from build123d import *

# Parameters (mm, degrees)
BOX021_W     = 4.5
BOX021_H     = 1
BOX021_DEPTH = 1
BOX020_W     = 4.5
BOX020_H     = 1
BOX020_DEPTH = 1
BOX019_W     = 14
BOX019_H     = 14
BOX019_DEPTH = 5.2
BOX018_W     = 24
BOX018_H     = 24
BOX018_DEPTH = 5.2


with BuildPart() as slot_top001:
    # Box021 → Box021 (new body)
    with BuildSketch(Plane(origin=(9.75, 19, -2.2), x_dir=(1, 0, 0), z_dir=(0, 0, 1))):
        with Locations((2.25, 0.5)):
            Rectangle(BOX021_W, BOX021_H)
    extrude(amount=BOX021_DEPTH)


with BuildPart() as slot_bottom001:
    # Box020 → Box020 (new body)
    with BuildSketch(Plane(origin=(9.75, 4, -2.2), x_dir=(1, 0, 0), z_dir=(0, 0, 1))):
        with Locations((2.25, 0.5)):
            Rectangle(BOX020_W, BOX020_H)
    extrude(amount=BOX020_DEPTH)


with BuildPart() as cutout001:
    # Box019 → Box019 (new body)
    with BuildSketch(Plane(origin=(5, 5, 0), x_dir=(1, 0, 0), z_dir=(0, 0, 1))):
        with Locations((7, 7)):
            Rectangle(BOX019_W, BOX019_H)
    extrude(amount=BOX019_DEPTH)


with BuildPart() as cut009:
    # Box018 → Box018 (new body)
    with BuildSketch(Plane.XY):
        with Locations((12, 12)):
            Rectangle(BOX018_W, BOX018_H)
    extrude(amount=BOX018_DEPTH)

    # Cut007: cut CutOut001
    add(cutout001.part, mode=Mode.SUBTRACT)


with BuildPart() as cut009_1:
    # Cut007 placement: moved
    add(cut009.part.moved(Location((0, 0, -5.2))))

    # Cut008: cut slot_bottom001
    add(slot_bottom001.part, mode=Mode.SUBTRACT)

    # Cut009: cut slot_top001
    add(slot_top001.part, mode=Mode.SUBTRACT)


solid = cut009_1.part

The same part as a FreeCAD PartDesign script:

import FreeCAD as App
import Part
import Sketcher
Q = App.Units.Quantity

doc = App.newDocument("Part")
params = doc.addObject("Spreadsheet::Sheet", "Params")
for row, (alias, value) in enumerate([
    ("sketch1_height", "1 mm"),
    ("sketch1_width", "4.5 mm"),
    ("pad1_length", "1 mm"),
    ("sketch2_height", "1 mm"),
    ("sketch2_width", "4.5 mm"),
    ("pad2_length", "1 mm"),
    ("sketch3_width", "14 mm"),
    ("pad3_length", "5.2 mm"),
    ("sketch4_width", "24 mm"),
    ("pad4_length", "5.2 mm"),
], start=1):
    params.set(f"A{row}", alias)
    params.set(f"B{row}", "=" + value)
    params.setAlias(f"B{row}", alias)

body = doc.addObject("PartDesign::Body", "Body")

sketch1 = body.newObject("Sketcher::SketchObject", "Sketch")
sketch1.AttachmentSupport = (doc.getObject("XY_Plane"), [""])
sketch1.MapMode = "FlatFace"
sketch1.AttachmentOffset = App.Placement(App.Vector(0, 0, -2.2), App.Rotation())
sketch1.addGeometry(Part.LineSegment(App.Vector(9.75, 20, 0), App.Vector(9.75, 19, 0)), False)
sketch1.addGeometry(Part.LineSegment(App.Vector(9.75, 19, 0), App.Vector(14.25, 19, 0)), False)
sketch1.addGeometry(Part.LineSegment(App.Vector(14.25, 19, 0), App.Vector(14.25, 20, 0)), False)
sketch1.addGeometry(Part.LineSegment(App.Vector(14.25, 20, 0), App.Vector(9.75, 20, 0)), False)
sketch1.addConstraint(Sketcher.Constraint("Coincident", 0, 2, 1, 1))
sketch1.addConstraint(Sketcher.Constraint("Coincident", 1, 2, 2, 1))
sketch1.addConstraint(Sketcher.Constraint("Coincident", 2, 2, 3, 1))
sketch1.addConstraint(Sketcher.Constraint("Coincident", 3, 2, 0, 1))
sketch1.addConstraint(Sketcher.Constraint("Vertical", 0))
sketch1.addConstraint(Sketcher.Constraint("Horizontal", 1))
sketch1.addConstraint(Sketcher.Constraint("Vertical", 2))
sketch1.addConstraint(Sketcher.Constraint("Horizontal", 3))
sketch1.addConstraint(Sketcher.Constraint("DistanceY", 0, 2, 0, 1, Q("1 mm")))
sketch1.addConstraint(Sketcher.Constraint("DistanceX", 1, 1, 1, 2, Q("4.5 mm")))
sketch1.addConstraint(Sketcher.Constraint("DistanceY", -1, 1, 0, 2, Q("19 mm")))
sketch1.addConstraint(Sketcher.Constraint("DistanceX", -1, 1, 0, 2, Q("9.75 mm")))
sketch1.setExpression("Constraints[8]", "Params.sketch1_height")
sketch1.setExpression("Constraints[9]", "Params.sketch1_width")
pad1 = body.newObject("PartDesign::Pad", "Pad")
pad1.Profile = sketch1
pad1.setExpression("Length", "Params.pad1_length")
body2 = doc.addObject("PartDesign::Body", "Body001")

sketch2 = body2.newObject("Sketcher::SketchObject", "Sketch001")
sketch2.AttachmentSupport = (doc.getObject("XY_Plane001"), [""])
sketch2.MapMode = "FlatFace"
sketch2.AttachmentOffset = App.Placement(App.Vector(0, 0, -2.2), App.Rotation())
sketch2.addGeometry(Part.LineSegment(App.Vector(9.75, 5, 0), App.Vector(9.75, 4, 0)), False)
sketch2.addGeometry(Part.LineSegment(App.Vector(9.75, 4, 0), App.Vector(14.25, 4, 0)), False)
sketch2.addGeometry(Part.LineSegment(App.Vector(14.25, 4, 0), App.Vector(14.25, 5, 0)), False)
sketch2.addGeometry(Part.LineSegment(App.Vector(14.25, 5, 0), App.Vector(9.75, 5, 0)), False)
sketch2.addConstraint(Sketcher.Constraint("Coincident", 0, 2, 1, 1))
sketch2.addConstraint(Sketcher.Constraint("Coincident", 1, 2, 2, 1))
sketch2.addConstraint(Sketcher.Constraint("Coincident", 2, 2, 3, 1))
sketch2.addConstraint(Sketcher.Constraint("Coincident", 3, 2, 0, 1))
sketch2.addConstraint(Sketcher.Constraint("Vertical", 0))
sketch2.addConstraint(Sketcher.Constraint("Horizontal", 1))
sketch2.addConstraint(Sketcher.Constraint("Vertical", 2))
sketch2.addConstraint(Sketcher.Constraint("Horizontal", 3))
sketch2.addConstraint(Sketcher.Constraint("DistanceY", 0, 2, 0, 1, Q("1 mm")))
sketch2.addConstraint(Sketcher.Constraint("DistanceX", 1, 1, 1, 2, Q("4.5 mm")))
sketch2.addConstraint(Sketcher.Constraint("DistanceY", -1, 1, 0, 2, Q("4 mm")))
sketch2.addConstraint(Sketcher.Constraint("DistanceX", -1, 1, 0, 2, Q("9.75 mm")))
sketch2.setExpression("Constraints[8]", "Params.sketch2_height")
sketch2.setExpression("Constraints[9]", "Params.sketch2_width")
pad2 = body2.newObject("PartDesign::Pad", "Pad001")
pad2.Profile = sketch2
pad2.setExpression("Length", "Params.pad2_length")
body3 = doc.addObject("PartDesign::Body", "Body002")

sketch3 = body3.newObject("Sketcher::SketchObject", "Sketch002")
sketch3.AttachmentSupport = (doc.getObject("XY_Plane002"), [""])
sketch3.MapMode = "FlatFace"
sketch3.addGeometry(Part.LineSegment(App.Vector(5, 19, 0), App.Vector(5, 5, 0)), False)
sketch3.addGeometry(Part.LineSegment(App.Vector(5, 5, 0), App.Vector(19, 5, 0)), False)
sketch3.addGeometry(Part.LineSegment(App.Vector(19, 5, 0), App.Vector(19, 19, 0)), False)
sketch3.addGeometry(Part.LineSegment(App.Vector(19, 19, 0), App.Vector(5, 19, 0)), False)
sketch3.addConstraint(Sketcher.Constraint("Coincident", 0, 2, 1, 1))
sketch3.addConstraint(Sketcher.Constraint("Coincident", 1, 2, 2, 1))
sketch3.addConstraint(Sketcher.Constraint("Coincident", 2, 2, 3, 1))
sketch3.addConstraint(Sketcher.Constraint("Coincident", 3, 2, 0, 1))
sketch3.addConstraint(Sketcher.Constraint("Vertical", 0))
sketch3.addConstraint(Sketcher.Constraint("Horizontal", 1))
sketch3.addConstraint(Sketcher.Constraint("Vertical", 2))
sketch3.addConstraint(Sketcher.Constraint("Horizontal", 3))
sketch3.addConstraint(Sketcher.Constraint("Equal", 3, 0))
sketch3.addConstraint(Sketcher.Constraint("DistanceX", 1, 1, 1, 2, Q("14 mm")))
sketch3.addConstraint(Sketcher.Constraint("DistanceX", -1, 1, 0, 2, Q("5 mm")))
sketch3.addConstraint(Sketcher.Constraint("DistanceY", -1, 1, 0, 2, Q("5 mm")))
sketch3.setExpression("Constraints[9]", "Params.sketch3_width")
pad3 = body3.newObject("PartDesign::Pad", "Pad002")
pad3.Profile = sketch3
pad3.setExpression("Length", "Params.pad3_length")
body4 = doc.addObject("PartDesign::Body", "Body003")

sketch4 = body4.newObject("Sketcher::SketchObject", "Sketch003")
sketch4.AttachmentSupport = (doc.getObject("XY_Plane003"), [""])
sketch4.MapMode = "FlatFace"
sketch4.addGeometry(Part.LineSegment(App.Vector(0, 24, 0), App.Vector(0, 0, 0)), False)
sketch4.addGeometry(Part.LineSegment(App.Vector(0, 0, 0), App.Vector(24, 0, 0)), False)
sketch4.addGeometry(Part.LineSegment(App.Vector(24, 0, 0), App.Vector(24, 24, 0)), False)
sketch4.addGeometry(Part.LineSegment(App.Vector(24, 24, 0), App.Vector(0, 24, 0)), False)
sketch4.addConstraint(Sketcher.Constraint("Coincident", 0, 2, 1, 1))
sketch4.addConstraint(Sketcher.Constraint("Coincident", 1, 2, 2, 1))
sketch4.addConstraint(Sketcher.Constraint("Coincident", 2, 2, 3, 1))
sketch4.addConstraint(Sketcher.Constraint("Coincident", 3, 2, 0, 1))
sketch4.addConstraint(Sketcher.Constraint("Vertical", 0))
sketch4.addConstraint(Sketcher.Constraint("Horizontal", 1))
sketch4.addConstraint(Sketcher.Constraint("Vertical", 2))
sketch4.addConstraint(Sketcher.Constraint("Horizontal", 3))
sketch4.addConstraint(Sketcher.Constraint("Coincident", 0, 2, -1, 1))
sketch4.addConstraint(Sketcher.Constraint("Equal", 3, 0))
sketch4.addConstraint(Sketcher.Constraint("DistanceX", 1, 1, 1, 2, Q("24 mm")))
sketch4.setExpression("Constraints[10]", "Params.sketch4_width")
pad4 = body4.newObject("PartDesign::Pad", "Pad003")
pad4.Profile = sketch4
pad4.setExpression("Length", "Params.pad4_length")
doc.recompute()

boolean = body4.newObject("PartDesign::Boolean", "Boolean")
boolean.Type = "Cut"
boolean.addObjects([body3])
body5 = doc.addObject("PartDesign::Body", "Body004")
doc.recompute()

body4.Placement = App.Placement(App.Vector(0, 0, -5.2), App.Rotation(App.Vector(0, 0, 1), 0))
boolean2 = body5.newObject("PartDesign::Boolean", "Boolean001")
boolean2.Type = "Fuse"
boolean2.addObjects([body4])
doc.recompute()

boolean3 = body5.newObject("PartDesign::Boolean", "Boolean002")
boolean3.Type = "Cut"
boolean3.addObjects([body2])
doc.recompute()

boolean4 = body5.newObject("PartDesign::Boolean", "Boolean003")
boolean4.Type = "Cut"
boolean4.addObjects([body])

doc.recompute()
